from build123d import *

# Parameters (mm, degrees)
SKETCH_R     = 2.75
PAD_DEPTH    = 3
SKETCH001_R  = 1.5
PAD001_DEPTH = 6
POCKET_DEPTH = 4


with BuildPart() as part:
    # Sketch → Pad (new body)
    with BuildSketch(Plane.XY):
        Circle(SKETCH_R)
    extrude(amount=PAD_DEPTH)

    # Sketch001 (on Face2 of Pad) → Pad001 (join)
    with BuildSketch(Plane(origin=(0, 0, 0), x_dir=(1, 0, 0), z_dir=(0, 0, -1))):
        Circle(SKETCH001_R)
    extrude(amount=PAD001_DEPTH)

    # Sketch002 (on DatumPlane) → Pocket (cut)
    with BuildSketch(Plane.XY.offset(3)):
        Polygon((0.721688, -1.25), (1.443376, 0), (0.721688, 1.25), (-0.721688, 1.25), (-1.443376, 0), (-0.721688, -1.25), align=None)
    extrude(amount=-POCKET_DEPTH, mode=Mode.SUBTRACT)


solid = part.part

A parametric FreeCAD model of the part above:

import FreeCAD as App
import Part
import Sketcher
from FreeCAD import Vector
Q = App.Units.Quantity

doc = App.newDocument("Part")
body = doc.addObject("PartDesign::Body", "Body")

sketch1 = body.newObject("Sketcher::SketchObject", "Sketch")
sketch1.AttachmentSupport = (doc.getObject("XY_Plane"), [""])
sketch1.MapMode = "FlatFace"
sketch1.addGeometry(Part.Circle(Vector(0, 0, 0), Vector(0, 0, 1), 2.75), False)
sketch1.addConstraint([
    Sketcher.Constraint("Coincident", 0, 3, -1, 1),
    Sketcher.Constraint("Diameter", 0, 5.5),
])
pad1 = body.newObject("PartDesign::Pad", "Pad")
pad1.Profile = sketch1
pad1.Length = 3

sketch2 = body.newObject("Sketcher::SketchObject", "Sketch001")
sketch2.AttachmentSupport = (doc.getObject("XY_Plane"), [""])
sketch2.MapMode = "FlatFace"
sketch2.addGeometry(Part.Circle(Vector(0, 0, 0), Vector(0, 0, 1), 1.5), False)
sketch2.addConstraint([
    Sketcher.Constraint("Coincident", 0, 3, -1, 1),
    Sketcher.Constraint("Diameter", 0, 3.0),
])
pad2 = body.newObject("PartDesign::Pad", "Pad001")
pad2.Profile = sketch2
pad2.Length = 6
pad2.Reversed = True

sketch3 = body.newObject("Sketcher::SketchObject", "Sketch002")
sketch3.AttachmentSupport = (doc.getObject("XY_Plane"), [""])
sketch3.MapMode = "FlatFace"
sketch3.AttachmentOffset = App.Placement(Vector(0, 0, 3), App.Rotation())
sketch3.addGeometry([
    Part.LineSegment(Vector(0.721688, -1.25, 0), Vector(1.443376, 0, 0)),
    Part.LineSegment(Vector(1.443376, 0, 0), Vector(0.721688, 1.25, 0)),
    Part.LineSegment(Vector(0.721688, 1.25, 0), Vector(-0.721688, 1.25, 0)),
    Part.LineSegment(Vector(-0.721688, 1.25, 0), Vector(-1.443376, 0, 0)),
    Part.LineSegment(Vector(-1.443376, 0, 0), Vector(-0.721688, -1.25, 0)),
    Part.LineSegment(Vector(-0.721688, -1.25, 0), Vector(0.721688, -1.25, 0)),
], False)
sketch3.addConstraint([
    Sketcher.Constraint("Coincident", 0, 2, 1, 1),
    Sketcher.Constraint("Coincident", 1, 2, 2, 1),
    Sketcher.Constraint("Coincident", 2, 2, 3, 1),
    Sketcher.Constraint("Coincident", 3, 2, 4, 1),
    Sketcher.Constraint("Coincident", 4, 2, 5, 1),
    Sketcher.Constraint("Coincident", 5, 2, 0, 1),
    Sketcher.Constraint("Horizontal", 2),
    Sketcher.Constraint("Horizontal", 5),
    Sketcher.Constraint("Symmetric", 0, 2, 3, 2, -1, 1),
    Sketcher.Constraint("Symmetric", 1, 2, 4, 2, -1, 1),
    Sketcher.Constraint("PointOnObject", 0, 2, -1),
    Sketcher.Constraint("Parallel", 0, 3),
    Sketcher.Constraint("Vertical", 2, 2, 4, 2),
    Sketcher.Constraint("Angle", 0, Q("59.999994 deg")),
    Sketcher.Constraint("DistanceY", 4, 2, 2, 2, 2.5),
    Sketcher.Constraint("DistanceX", 2, 2, 2, 1, 1.443376),
])
pocket1 = body.newObject("PartDesign::Pocket", "Pocket")
pocket1.Profile = sketch3
pocket1.Length = 4

doc.recompute()
